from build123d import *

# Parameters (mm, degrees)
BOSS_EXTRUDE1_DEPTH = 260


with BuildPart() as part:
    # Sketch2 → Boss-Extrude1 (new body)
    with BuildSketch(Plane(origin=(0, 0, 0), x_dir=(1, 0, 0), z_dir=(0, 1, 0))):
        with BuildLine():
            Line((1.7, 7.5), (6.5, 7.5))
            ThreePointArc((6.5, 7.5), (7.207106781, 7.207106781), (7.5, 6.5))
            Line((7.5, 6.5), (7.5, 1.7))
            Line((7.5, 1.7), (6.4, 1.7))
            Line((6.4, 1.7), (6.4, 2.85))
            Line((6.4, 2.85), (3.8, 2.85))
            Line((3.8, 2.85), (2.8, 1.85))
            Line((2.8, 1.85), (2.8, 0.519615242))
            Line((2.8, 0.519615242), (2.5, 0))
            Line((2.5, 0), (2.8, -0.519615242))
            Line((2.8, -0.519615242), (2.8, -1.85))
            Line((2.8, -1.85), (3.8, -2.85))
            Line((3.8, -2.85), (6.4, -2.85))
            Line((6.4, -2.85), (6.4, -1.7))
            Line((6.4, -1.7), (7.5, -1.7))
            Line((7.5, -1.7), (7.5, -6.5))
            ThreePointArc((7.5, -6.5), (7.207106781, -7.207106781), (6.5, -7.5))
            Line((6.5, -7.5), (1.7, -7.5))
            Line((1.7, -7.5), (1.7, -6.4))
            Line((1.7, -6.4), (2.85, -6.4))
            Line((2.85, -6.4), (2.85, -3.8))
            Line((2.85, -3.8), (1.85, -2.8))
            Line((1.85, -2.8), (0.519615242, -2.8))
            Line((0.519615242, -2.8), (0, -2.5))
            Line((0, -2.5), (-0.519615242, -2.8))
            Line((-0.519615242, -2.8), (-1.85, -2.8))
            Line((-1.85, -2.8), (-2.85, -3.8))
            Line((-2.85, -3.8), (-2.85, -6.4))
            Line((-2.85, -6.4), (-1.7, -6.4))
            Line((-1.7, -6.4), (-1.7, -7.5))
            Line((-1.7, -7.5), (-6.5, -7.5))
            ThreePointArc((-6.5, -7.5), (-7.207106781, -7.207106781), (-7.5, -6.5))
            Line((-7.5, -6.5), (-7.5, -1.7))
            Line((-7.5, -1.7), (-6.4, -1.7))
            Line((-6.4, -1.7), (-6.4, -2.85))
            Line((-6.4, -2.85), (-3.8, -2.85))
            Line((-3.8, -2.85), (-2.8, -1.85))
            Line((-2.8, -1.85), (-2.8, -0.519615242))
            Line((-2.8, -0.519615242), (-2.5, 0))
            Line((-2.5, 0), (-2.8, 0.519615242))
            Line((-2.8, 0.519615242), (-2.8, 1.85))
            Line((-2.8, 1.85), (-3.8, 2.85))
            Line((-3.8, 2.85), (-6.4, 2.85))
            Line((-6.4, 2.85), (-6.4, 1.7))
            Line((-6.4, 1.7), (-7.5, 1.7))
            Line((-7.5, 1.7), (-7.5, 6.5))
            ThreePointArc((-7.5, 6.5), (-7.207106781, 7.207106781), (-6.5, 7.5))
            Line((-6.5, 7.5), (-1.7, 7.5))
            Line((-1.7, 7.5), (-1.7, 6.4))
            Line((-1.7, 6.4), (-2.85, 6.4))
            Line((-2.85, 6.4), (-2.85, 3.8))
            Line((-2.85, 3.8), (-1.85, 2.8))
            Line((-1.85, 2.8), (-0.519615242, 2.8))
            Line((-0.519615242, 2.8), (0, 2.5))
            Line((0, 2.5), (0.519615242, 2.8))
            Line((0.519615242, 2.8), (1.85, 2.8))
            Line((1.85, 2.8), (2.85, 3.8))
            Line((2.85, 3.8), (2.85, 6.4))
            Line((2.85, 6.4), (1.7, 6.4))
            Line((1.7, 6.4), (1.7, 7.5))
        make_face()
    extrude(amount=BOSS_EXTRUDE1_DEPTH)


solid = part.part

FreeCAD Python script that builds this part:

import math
import FreeCAD as App
import Part
import Sketcher

V = App.Vector
Q = App.Units.Quantity

doc = App.newDocument("Part")
params = doc.addObject("Spreadsheet::Sheet", "Params")
for row, (alias, value) in enumerate([
    ("sketch1_radius", "1 mm"),
    ("sketch1_width", "4.8 mm"),
    ("sketch1_width2", "1.1 mm"),
    ("sketch1_width3", "2.6 mm"),
    ("sketch1_length", "0.6 mm"),
    ("pad1_length", "260 mm"),
], start=1):
    params.set(f"A{row}", alias)
    params.set(f"B{row}", "=" + value)
    params.setAlias(f"B{row}", alias)

body = doc.addObject("PartDesign::Body", "Body")

sketch1 = body.newObject("Sketcher::SketchObject", "Sketch")
sketch1.AttachmentSupport = (doc.getObject("XZ_Plane"), [""])
sketch1.MapMode = "FlatFace"
sketch1.addGeometry([
    Part.LineSegment(V(6.5, -7.5, 0), V(1.7, -7.5, 0)),
    Part.LineSegment(V(1.7, -7.5, 0), V(1.7, -6.4, 0)),
    Part.LineSegment(V(1.7, -6.4, 0), V(2.85, -6.4, 0)),
    Part.LineSegment(V(2.85, -6.4, 0), V(2.85, -3.8, 0)),
    Part.LineSegment(V(2.85, -3.8, 0), V(1.85, -2.8, 0)),
    Part.LineSegment(V(1.85, -2.8, 0), V(0.519615, -2.8, 0)),
    Part.LineSegment(V(0.519615, -2.8, 0), V(0, -2.5, 0)),
    Part.LineSegment(V(0, -2.5, 0), V(-0.519615, -2.8, 0)),
    Part.LineSegment(V(-0.519615, -2.8, 0), V(-1.85, -2.8, 0)),
    Part.LineSegment(V(-1.85, -2.8, 0), V(-2.85, -3.8, 0)),
    Part.LineSegment(V(-2.85, -3.8, 0), V(-2.85, -6.4, 0)),
    Part.LineSegment(V(-2.85, -6.4, 0), V(-1.7, -6.4, 0)),
    Part.LineSegment(V(-1.7, -6.4, 0), V(-1.7, -7.5, 0)),
    Part.LineSegment(V(-1.7, -7.5, 0), V(-6.5, -7.5, 0)),
    Part.ArcOfCircle(Part.Circle(V(-6.5, -6.5, 0), V(0, 0, 1), 1), math.radians(-180), math.radians(-90)),
    Part.LineSegment(V(-7.5, -6.5, 0), V(-7.5, -1.7, 0)),
    Part.LineSegment(V(-7.5, -1.7, 0), V(-6.4, -1.7, 0)),
    Part.LineSegment(V(-6.4, -1.7, 0), V(-6.4, -2.85, 0)),
    Part.LineSegment(V(-6.4, -2.85, 0), V(-3.8, -2.85, 0)),
    Part.LineSegment(V(-3.8, -2.85, 0), V(-2.8, -1.85, 0)),
    Part.LineSegment(V(-2.8, -1.85, 0), V(-2.8, -0.519615, 0)),
    Part.LineSegment(V(-2.8, -0.519615, 0), V(-2.5, 0, 0)),
    Part.LineSegment(V(-2.5, 0, 0), V(-2.8, 0.519615, 0)),
    Part.LineSegment(V(-2.8, 0.519615, 0), V(-2.8, 1.85, 0)),
    Part.LineSegment(V(-2.8, 1.85, 0), V(-3.8, 2.85, 0)),
    Part.LineSegment(V(-3.8, 2.85, 0), V(-6.4, 2.85, 0)),
    Part.LineSegment(V(-6.4, 2.85, 0), V(-6.4, 1.7, 0)),
    Part.LineSegment(V(-6.4, 1.7, 0), V(-7.5, 1.7, 0)),
    Part.LineSegment(V(-7.5, 1.7, 0), V(-7.5, 6.5, 0)),
    Part.ArcOfCircle(Part.Circle(V(-6.5, 6.5, 0), V(0, 0, 1), 1), math.radians(90), math.radians(180)),
    Part.LineSegment(V(-6.5, 7.5, 0), V(-1.7, 7.5, 0)),
    Part.LineSegment(V(-1.7, 7.5, 0), V(-1.7, 6.4, 0)),
    Part.LineSegment(V(-1.7, 6.4, 0), V(-2.85, 6.4, 0)),
    Part.LineSegment(V(-2.85, 6.4, 0), V(-2.85, 3.8, 0)),
    Part.LineSegment(V(-2.85, 3.8, 0), V(-1.85, 2.8, 0)),
    Part.LineSegment(V(-1.85, 2.8, 0), V(-0.519615, 2.8, 0)),
    Part.LineSegment(V(-0.519615, 2.8, 0), V(0, 2.5, 0)),
    Part.LineSegment(V(0, 2.5, 0), V(0.519615, 2.8, 0)),
    Part.LineSegment(V(0.519615, 2.8, 0), V(1.85, 2.8, 0)),
    Part.LineSegment(V(1.85, 2.8, 0), V(2.85, 3.8, 0)),
    Part.LineSegment(V(2.85, 3.8, 0), V(2.85, 6.4, 0)),
    Part.LineSegment(V(2.85, 6.4, 0), V(1.7, 6.4, 0)),
    Part.LineSegment(V(1.7, 6.4, 0), V(1.7, 7.5, 0)),
    Part.LineSegment(V(1.7, 7.5, 0), V(6.5, 7.5, 0)),
    Part.ArcOfCircle(Part.Circle(V(6.5, 6.5, 0), V(0, 0, 1), 1), math.radians(0), math.radians(90)),
    Part.LineSegment(V(7.5, 6.5, 0), V(7.5, 1.7, 0)),
    Part.LineSegment(V(7.5, 1.7, 0), V(6.4, 1.7, 0)),
    Part.LineSegment(V(6.4, 1.7, 0), V(6.4, 2.85, 0)),
    Part.LineSegment(V(6.4, 2.85, 0), V(3.8, 2.85, 0)),
    Part.LineSegment(V(3.8, 2.85, 0), V(2.8, 1.85, 0)),
    Part.LineSegment(V(2.8, 1.85, 0), V(2.8, 0.519615, 0)),
    Part.LineSegment(V(2.8, 0.519615, 0), V(2.5, 0, 0)),
    Part.LineSegment(V(2.5, 0, 0), V(2.8, -0.519615, 0)),
    Part.LineSegment(V(2.8, -0.519615, 0), V(2.8, -1.85, 0)),
    Part.LineSegment(V(2.8, -1.85, 0), V(3.8, -2.85, 0)),
    Part.LineSegment(V(3.8, -2.85, 0), V(6.4, -2.85, 0)),
    Part.LineSegment(V(6.4, -2.85, 0), V(6.4, -1.7, 0)),
    Part.LineSegment(V(6.4, -1.7, 0), V(7.5, -1.7, 0)),
    Part.LineSegment(V(7.5, -1.7, 0), V(7.5, -6.5, 0)),
    Part.ArcOfCircle(Part.Circle(V(6.5, -6.5, 0), V(0, 0, 1), 1), math.radians(-90), math.radians(0)),
], False)
sketch1.addConstraint([
    Sketcher.Constraint("Coincident", 0, 2, 1, 1),
    Sketcher.Constraint("Coincident", 1, 2, 2, 1),
    Sketcher.Constraint("Coincident", 2, 2, 3, 1),
    Sketcher.Constraint("Coincident", 3, 2, 4, 1),
    Sketcher.Constraint("Coincident", 4, 2, 5, 1),
    Sketcher.Constraint("Coincident", 5, 2, 6, 1),
    Sketcher.Constraint("Coincident", 6, 2, 7, 1),
    Sketcher.Constraint("Coincident", 7, 2, 8, 1),
    Sketcher.Constraint("Coincident", 8, 2, 9, 1),
    Sketcher.Constraint("Coincident", 9, 2, 10, 1),
    Sketcher.Constraint("Coincident", 10, 2, 11, 1),
    Sketcher.Constraint("Coincident", 11, 2, 12, 1),
    Sketcher.Constraint("Coincident", 12, 2, 13, 1),
    Sketcher.Constraint("Tangent", 13, 2, 14, 2),
    Sketcher.Constraint("Tangent", 14, 1, 15, 1),
    Sketcher.Constraint("Coincident", 15, 2, 16, 1),
    Sketcher.Constraint("Coincident", 16, 2, 17, 1),
    Sketcher.Constraint("Coincident", 17, 2, 18, 1),
    Sketcher.Constraint("Coincident", 18, 2, 19, 1),
    Sketcher.Constraint("Coincident", 19, 2, 20, 1),
    Sketcher.Constraint("Coincident", 20, 2, 21, 1),
    Sketcher.Constraint("Coincident", 21, 2, 22, 1),
    Sketcher.Constraint("Coincident", 22, 2, 23, 1),
    Sketcher.Constraint("Coincident", 23, 2, 24, 1),
    Sketcher.Constraint("Coincident", 24, 2, 25, 1),
    Sketcher.Constraint("Coincident", 25, 2, 26, 1),
    Sketcher.Constraint("Coincident", 26, 2, 27, 1),
    Sketcher.Constraint("Coincident", 27, 2, 28, 1),
    Sketcher.Constraint("Tangent", 28, 2, 29, 2),
    Sketcher.Constraint("Tangent", 29, 1, 30, 1),
    Sketcher.Constraint("Coincident", 30, 2, 31, 1),
    Sketcher.Constraint("Coincident", 31, 2, 32, 1),
    Sketcher.Constraint("Coincident", 32, 2, 33, 1),
    Sketcher.Constraint("Coincident", 33, 2, 34, 1),
    Sketcher.Constraint("Coincident", 34, 2, 35, 1),
    Sketcher.Constraint("Coincident", 35, 2, 36, 1),
    Sketcher.Constraint("Coincident", 36, 2, 37, 1),
    Sketcher.Constraint("Coincident", 37, 2, 38, 1),
    Sketcher.Constraint("Coincident", 38, 2, 39, 1),
    Sketcher.Constraint("Coincident", 39, 2, 40, 1),
    Sketcher.Constraint("Coincident", 40, 2, 41, 1),
    Sketcher.Constraint("Coincident", 41, 2, 42, 1),
    Sketcher.Constraint("Coincident", 42, 2, 43, 1),
    Sketcher.Constraint("Tangent", 43, 2, 44, 2),
    Sketcher.Constraint("Tangent", 44, 1, 45, 1),
    Sketcher.Constraint("Coincident", 45, 2, 46, 1),
    Sketcher.Constraint("Coincident", 46, 2, 47, 1),
    Sketcher.Constraint("Coincident", 47, 2, 48, 1),
    Sketcher.Constraint("Coincident", 48, 2, 49, 1),
    Sketcher.Constraint("Coincident", 49, 2, 50, 1),
    Sketcher.Constraint("Coincident", 50, 2, 51, 1),
    Sketcher.Constraint("Coincident", 51, 2, 52, 1),
    Sketcher.Constraint("Coincident", 52, 2, 53, 1),
    Sketcher.Constraint("Coincident", 53, 2, 54, 1),
    Sketcher.Constraint("Coincident", 54, 2, 55, 1),
    Sketcher.Constraint("Coincident", 55, 2, 56, 1),
    Sketcher.Constraint("Coincident", 56, 2, 57, 1),
    Sketcher.Constraint("Coincident", 57, 2, 58, 1),
    Sketcher.Constraint("Tangent", 58, 2, 59, 2),
    Sketcher.Constraint("Tangent", 59, 1, 0, 1),
    Sketcher.Constraint("Horizontal", 0),
    Sketcher.Constraint("Vertical", 1),
    Sketcher.Constraint("Horizontal", 2),
    Sketcher.Constraint("Vertical", 3),
    Sketcher.Constraint("Horizontal", 5),
    Sketcher.Constraint("Horizontal", 8),
    Sketcher.Constraint("Vertical", 10),
    Sketcher.Constraint("Horizontal", 11),
    Sketcher.Constraint("Vertical", 12),
    Sketcher.Constraint("Horizontal", 13),
    Sketcher.Constraint("Vertical", 15),
    Sketcher.Constraint("Horizontal", 16),
    Sketcher.Constraint("Vertical", 17),
    Sketcher.Constraint("Horizontal", 18),
    Sketcher.Constraint("Vertical", 20),
    Sketcher.Constraint("Vertical", 23),
    Sketcher.Constraint("Horizontal", 25),
    Sketcher.Constraint("Vertical", 26),
    Sketcher.Constraint("Horizontal", 27),
    Sketcher.Constraint("Vertical", 28),
    Sketcher.Constraint("Horizontal", 30),
    Sketcher.Constraint("Vertical", 31),
    Sketcher.Constraint("Horizontal", 32),
    Sketcher.Constraint("Vertical", 33),
    Sketcher.Constraint("Horizontal", 35),
    Sketcher.Constraint("Horizontal", 38),
    Sketcher.Constraint("Vertical", 40),
    Sketcher.Constraint("Horizontal", 41),
    Sketcher.Constraint("Vertical", 42),
    Sketcher.Constraint("Horizontal", 43),
    Sketcher.Constraint("Vertical", 45),
    Sketcher.Constraint("Horizontal", 46),
    Sketcher.Constraint("Vertical", 47),
    Sketcher.Constraint("Horizontal", 48),
    Sketcher.Constraint("Vertical", 50),
    Sketcher.Constraint("Vertical", 53),
    Sketcher.Constraint("Horizontal", 55),
    Sketcher.Constraint("Vertical", 56),
    Sketcher.Constraint("Horizontal", 57),
    Sketcher.Constraint("Vertical", 58),
    Sketcher.Constraint("Equal", 14, 29),
    Sketcher.Constraint("Equal", 29, 44),
    Sketcher.Constraint("Equal", 44, 59),
    Sketcher.Constraint("Symmetric", 14, 3, 44, 3, -1, 1),
    Sketcher.Constraint("Symmetric", 29, 3, 59, 3, -1, 1),
    Sketcher.Constraint("Symmetric", 1, 2, 31, 2, -1, 1),
    Sketcher.Constraint("Symmetric", 3, 2, 33, 2, -1, 1),
    Sketcher.Constraint("Symmetric", 4, 2, 34, 2, -1, 1),
    Sketcher.Constraint("Symmetric", 6, 2, 36, 2, -1, 1),
    Sketcher.Constraint("Symmetric", 7, 2, 37, 2, -1, 1),
    Sketcher.Constraint("Symmetric", 9, 2, 39, 2, -1, 1),
    Sketcher.Constraint("Symmetric", 11, 2, 41, 2, -1, 1),
    Sketcher.Constraint("Symmetric", 16, 2, 46, 2, -1, 1),
    Sketcher.Constraint("Symmetric", 18, 2, 48, 2, -1, 1),
    Sketcher.Constraint("Symmetric", 19, 2, 49, 2, -1, 1),
    Sketcher.Constraint("Symmetric", 21, 2, 51, 2, -1, 1),
    Sketcher.Constraint("Symmetric", 22, 2, 52, 2, -1, 1),
    Sketcher.Constraint("Symmetric", 24, 2, 54, 2, -1, 1),
    Sketcher.Constraint("Symmetric", 26, 2, 56, 2, -1, 1),
    Sketcher.Constraint("Symmetric", 29, 3, 44, 3, -2),
    Sketcher.Constraint("Symmetric", 5, 2, 7, 2, -2),
    Sketcher.Constraint("Symmetric", 3, 2, 9, 2, -2),
    Sketcher.Constraint("Symmetric", 1, 2, 11, 2, -2),
    Sketcher.Constraint("Symmetric", 26, 2, 46, 2, -2),
    Sketcher.Constraint("Symmetric", 24, 2, 48, 2, -2),
    Sketcher.Constraint("Symmetric", 23, 2, 49, 2, -2),
    Sketcher.Constraint("PointOnObject", 6, 2, -2),
    Sketcher.Constraint("PointOnObject", 21, 2, -1),
    Sketcher.Constraint("Perpendicular", 4, 9),
    Sketcher.Constraint("Parallel", 9, 19),
    Sketcher.Constraint("Perpendicular", 6, 21),
    Sketcher.Constraint("Perpendicular", 7, 22),
    Sketcher.Constraint("Perpendicular", 19, 24),
    Sketcher.Constraint("Perpendicular", 21, 36),
    Sketcher.Constraint("Perpendicular", 34, 39),
    Sketcher.Constraint("Perpendicular", 36, 51),
    Sketcher.Constraint("Perpendicular", 49, 54),
    Sketcher.Constraint("Equal", 57, 1),
    Sketcher.Constraint("Equal", 55, 3),
    Sketcher.Constraint("Equal", 43, 15),
    Sketcher.Constraint("Equal", 41, 17),
    Sketcher.Constraint("Equal", 38, 20),
    Sketcher.Constraint("Equal", 9, 19),
    Sketcher.Constraint("Equal", 7, 21),
    Sketcher.Constraint("Radius", 14, 1.0),
    Sketcher.Constraint("Angle", 6, Q("150 deg")),
    Sketcher.Constraint("DistanceX", 0, 2, 0, 1, 4.8),
    Sketcher.Constraint("DistanceX", 16, 1, 16, 2, 1.1),
    Sketcher.Constraint("DistanceX", 18, 1, 18, 2, 2.6),
    Sketcher.Constraint("Distance", 6, 0.6),
    Sketcher.Constraint("DistanceX", 2, 1, 2, 2, 1.15),
    Sketcher.Constraint("DistanceX", 14, 3, -1, 1, 6.5),
    Sketcher.Constraint("DistanceY", 4, 2, -1, 1, 2.8),
])
sketch1.setExpression("Constraints[144]", "Params.sketch1_radius")
sketch1.setExpression("Constraints[146]", "Params.sketch1_width")
sketch1.setExpression("Constraints[147]", "Params.sketch1_width2")
sketch1.setExpression("Constraints[148]", "Params.sketch1_width3")
sketch1.setExpression("Constraints[149]", "Params.sketch1_length")
pad1 = body.newObject("PartDesign::Pad", "Pad")
pad1.Profile = sketch1
pad1.setExpression("Length", "Params.pad1_length")
pad1.Reversed = True

doc.recompute()
